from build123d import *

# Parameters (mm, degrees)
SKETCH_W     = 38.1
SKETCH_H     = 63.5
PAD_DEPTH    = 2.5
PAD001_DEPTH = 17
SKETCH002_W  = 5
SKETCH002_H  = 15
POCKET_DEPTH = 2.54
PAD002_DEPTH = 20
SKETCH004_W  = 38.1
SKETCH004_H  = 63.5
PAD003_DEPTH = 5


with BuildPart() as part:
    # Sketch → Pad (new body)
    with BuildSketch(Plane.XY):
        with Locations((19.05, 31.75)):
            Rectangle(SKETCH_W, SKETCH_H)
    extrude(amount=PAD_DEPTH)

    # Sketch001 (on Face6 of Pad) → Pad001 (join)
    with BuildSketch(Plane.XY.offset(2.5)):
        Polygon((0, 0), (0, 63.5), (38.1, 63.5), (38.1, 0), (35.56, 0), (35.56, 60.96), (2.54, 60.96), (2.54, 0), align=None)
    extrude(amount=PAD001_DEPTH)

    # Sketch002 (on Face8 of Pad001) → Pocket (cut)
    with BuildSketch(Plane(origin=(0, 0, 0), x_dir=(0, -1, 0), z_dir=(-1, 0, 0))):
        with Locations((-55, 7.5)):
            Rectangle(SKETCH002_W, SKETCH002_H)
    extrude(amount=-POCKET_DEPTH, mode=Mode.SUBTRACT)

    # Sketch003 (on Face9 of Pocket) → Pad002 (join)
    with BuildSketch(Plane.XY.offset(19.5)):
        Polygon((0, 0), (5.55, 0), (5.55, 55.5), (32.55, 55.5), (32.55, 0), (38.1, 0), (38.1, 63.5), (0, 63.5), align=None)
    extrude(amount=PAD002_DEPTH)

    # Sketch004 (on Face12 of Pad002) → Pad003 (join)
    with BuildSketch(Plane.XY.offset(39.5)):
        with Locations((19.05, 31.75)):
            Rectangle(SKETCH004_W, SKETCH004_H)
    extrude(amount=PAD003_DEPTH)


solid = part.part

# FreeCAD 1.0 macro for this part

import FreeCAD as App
import Part
import Sketcher
Q = App.Units.Quantity

doc = App.newDocument("Part")
params = doc.addObject("Spreadsheet::Sheet", "Params")
for row, (alias, value) in enumerate([
    ("sketch1_width", "38.1 mm"),
    ("sketch1_height", "63.5 mm"),
    ("pad1_length", "2.5 mm"),
    ("sketch2_width", "38.1 mm"),
    ("sketch2_height", "63.5 mm"),
    ("sketch2_width2", "2.54 mm"),
    ("sketch2_height2", "60.96 mm"),
    ("pad2_length", "17 mm"),
    ("sketch3_width", "5 mm"),
    ("sketch3_height", "15 mm"),
    ("pocket1_length", "2.54 mm"),
    ("sketch4_width", "27 mm"),
    ("sketch4_width2", "38.1 mm"),
    ("sketch4_height", "55.5 mm"),
    ("sketch4_height2", "63.5 mm"),
    ("pad3_length", "20 mm"),
    ("sketch5_width", "38.1 mm"),
    ("sketch5_height", "63.5 mm"),
    ("pad4_length", "5 mm"),
], start=1):
    params.set(f"A{row}", alias)
    params.set(f"B{row}", "=" + value)
    params.setAlias(f"B{row}", alias)

body = doc.addObject("PartDesign::Body", "Body")

# Sketch on XY plane
sketch1 = body.newObject("Sketcher::SketchObject", "Sketch")
sketch1.AttachmentSupport = (doc.getObject("XY_Plane"), [""])
sketch1.MapMode = "FlatFace"
sketch1.addGeometry([
    Part.LineSegment(App.Vector(0, 64, 0), App.Vector(0, 0, 0)),
    Part.LineSegment(App.Vector(0, 0, 0), App.Vector(38, 0, 0)),
    Part.LineSegment(App.Vector(38, 0, 0), App.Vector(38, 64, 0)),
    Part.LineSegment(App.Vector(38, 64, 0), App.Vector(0, 64, 0)),
], False)
sketch1.addConstraint([
    Sketcher.Constraint("Coincident", 0, 2, 1, 1),
    Sketcher.Constraint("Coincident", 1, 2, 2, 1),
    Sketcher.Constraint("Coincident", 2, 2, 3, 1),
    Sketcher.Constraint("Coincident", 3, 2, 0, 1),
    Sketcher.Constraint("Vertical", 0),
    Sketcher.Constraint("Horizontal", 1),
    Sketcher.Constraint("Vertical", 2),
    Sketcher.Constraint("Horizontal", 3),
    Sketcher.Constraint("Coincident", 0, 2, -1, 1),
    Sketcher.Constraint("DistanceX", 1, 1, 1, 2, Q("38.1 mm")),
    Sketcher.Constraint("DistanceY", 0, 2, 0, 1, Q("63.5 mm")),
])
sketch1.setExpression("Constraints[9]", "Params.sketch1_width")
sketch1.setExpression("Constraints[10]", "Params.sketch1_height")
pad1 = body.newObject("PartDesign::Pad", "Pad")
pad1.Profile = sketch1
pad1.setExpression("Length", "Params.pad1_length")

# Sketch on XY plane
sketch2 = body.newObject("Sketcher::SketchObject", "Sketch001")
sketch2.AttachmentSupport = (doc.getObject("XY_Plane"), [""])
sketch2.MapMode = "FlatFace"
sketch2.AttachmentOffset = App.Placement(App.Vector(0, 0, 2.5), App.Rotation())
sketch2.addGeometry([
    Part.LineSegment(App.Vector(0, 63.5, 0), App.Vector(0, 0, 0)),  # 0
    Part.LineSegment(App.Vector(0, 0, 0), App.Vector(2.5, 0, 0)),  # 1
    Part.LineSegment(App.Vector(2.5, 0, 0), App.Vector(2.5, 61, 0)),  # 2
    Part.LineSegment(App.Vector(2.5, 61, 0), App.Vector(35.6, 61, 0)),  # 3
    Part.LineSegment(App.Vector(35.6, 61, 0), App.Vector(35.6, 0, 0)),  # 4
    Part.LineSegment(App.Vector(35.6, 0, 0), App.Vector(38.1, 0, 0)),  # 5
    Part.LineSegment(App.Vector(38.1, 0, 0), App.Vector(38.1, 63.5, 0)),  # 6
    Part.LineSegment(App.Vector(38.1, 63.5, 0), App.Vector(0, 63.5, 0)),  # 7
], False)
sketch2.addConstraint([
    Sketcher.Constraint("Coincident", 0, 2, 1, 1),
    Sketcher.Constraint("Coincident", 1, 2, 2, 1),
    Sketcher.Constraint("Coincident", 2, 2, 3, 1),
    Sketcher.Constraint("Coincident", 3, 2, 4, 1),
    Sketcher.Constraint("Coincident", 4, 2, 5, 1),
    Sketcher.Constraint("Coincident", 5, 2, 6, 1),
    Sketcher.Constraint("Coincident", 6, 2, 7, 1),
    Sketcher.Constraint("Coincident", 7, 2, 0, 1),
    Sketcher.Constraint("Vertical", 0),
    Sketcher.Constraint("Horizontal", 1),
    Sketcher.Constraint("Vertical", 2),
    Sketcher.Constraint("Horizontal", 3),
    Sketcher.Constraint("Vertical", 4),
    Sketcher.Constraint("Horizontal", 5),
    Sketcher.Constraint("Vertical", 6),
    Sketcher.Constraint("Horizontal", 7),
    Sketcher.Constraint("Coincident", 0, 2, -1, 1),
    Sketcher.Constraint("PointOnObject", 4, 2, -1),
    Sketcher.Constraint("Equal", 1, 5),
    Sketcher.Constraint("DistanceX", 7, 2, 7, 1, Q("38.1 mm")),
    Sketcher.Constraint("DistanceY", 0, 2, 0, 1, Q("63.5 mm")),
    Sketcher.Constraint("DistanceX", 1, 1, 1, 2, Q("2.54 mm")),
    Sketcher.Constraint("DistanceY", 2, 1, 2, 2, Q("60.96 mm")),
])
sketch2.setExpression("Constraints[19]", "Params.sketch2_width")
sketch2.setExpression("Constraints[20]", "Params.sketch2_height")
sketch2.setExpression("Constraints[21]", "Params.sketch2_width2")
sketch2.setExpression("Constraints[22]", "Params.sketch2_height2")
pad2 = body.newObject("PartDesign::Pad", "Pad001")
pad2.Profile = sketch2
pad2.setExpression("Length", "Params.pad2_length")

# Sketch on YZ plane
sketch3 = body.newObject("Sketcher::SketchObject", "Sketch002")
sketch3.AttachmentSupport = (doc.getObject("YZ_Plane"), [""])
sketch3.MapMode = "FlatFace"
sketch3.addGeometry([
    Part.LineSegment(App.Vector(58, 15, 0), App.Vector(58, 0, 0)),
    Part.LineSegment(App.Vector(58, 0, 0), App.Vector(52, 0, 0)),
    Part.LineSegment(App.Vector(52, 0, 0), App.Vector(52, 15, 0)),
    Part.LineSegment(App.Vector(52, 15, 0), App.Vector(58, 15, 0)),
], False)
sketch3.addConstraint([
    Sketcher.Constraint("Coincident", 0, 2, 1, 1),
    Sketcher.Constraint("Coincident", 1, 2, 2, 1),
    Sketcher.Constraint("Coincident", 2, 2, 3, 1),
    Sketcher.Constraint("Coincident", 3, 2, 0, 1),
    Sketcher.Constraint("Vertical", 0),
    Sketcher.Constraint("Horizontal", 1),
    Sketcher.Constraint("Vertical", 2),
    Sketcher.Constraint("Horizontal", 3),
    Sketcher.Constraint("PointOnObject", 0, 2, -1),
    Sketcher.Constraint("DistanceX", 1, 2, 1, 1, Q("5 mm")),
    Sketcher.Constraint("DistanceY", 0, 2, 0, 1, Q("15 mm")),
    Sketcher.Constraint("DistanceX", -1, 1, 0, 2, Q("57.5 mm")),
])
sketch3.setExpression("Constraints[9]", "Params.sketch3_width")
sketch3.setExpression("Constraints[10]", "Params.sketch3_height")
pocket1 = body.newObject("PartDesign::Pocket", "Pocket")
pocket1.Profile = sketch3
pocket1.setExpression("Length", "Params.pocket1_length")
pocket1.Reversed = True

# Sketch on XY plane
sketch4 = body.newObject("Sketcher::SketchObject", "Sketch003")
sketch4.AttachmentSupport = (doc.getObject("XY_Plane"), [""])
sketch4.MapMode = "FlatFace"
sketch4.AttachmentOffset = App.Placement(App.Vector(0, 0, 19.5), App.Rotation())
sketch4.addGeometry([
    Part.LineSegment(App.Vector(0, 0, 0), App.Vector(6, 0, 0)),  # 0
    Part.LineSegment(App.Vector(6, 0, 0), App.Vector(6, 56, 0)),  # 1
    Part.LineSegment(App.Vector(6, 56, 0), App.Vector(33, 56, 0)),  # 2
    Part.LineSegment(App.Vector(33, 56, 0), App.Vector(33, 0, 0)),  # 3
    Part.LineSegment(App.Vector(33, 0, 0), App.Vector(38, 0, 0)),  # 4
    Part.LineSegment(App.Vector(38, 0, 0), App.Vector(38, 64, 0)),  # 5
    Part.LineSegment(App.Vector(38, 64, 0), App.Vector(0, 64, 0)),  # 6
    Part.LineSegment(App.Vector(0, 64, 0), App.Vector(0, 0, 0)),  # 7
], False)
sketch4.addConstraint([
    Sketcher.Constraint("Coincident", 0, 2, 1, 1),
    Sketcher.Constraint("Coincident", 1, 2, 2, 1),
    Sketcher.Constraint("Coincident", 2, 2, 3, 1),
    Sketcher.Constraint("Coincident", 3, 2, 4, 1),
    Sketcher.Constraint("Coincident", 4, 2, 5, 1),
    Sketcher.Constraint("Coincident", 5, 2, 6, 1),
    Sketcher.Constraint("Coincident", 6, 2, 7, 1),
    Sketcher.Constraint("Coincident", 7, 2, 0, 1),
    Sketcher.Constraint("Horizontal", 0),
    Sketcher.Constraint("Vertical", 1),
    Sketcher.Constraint("Horizontal", 2),
    Sketcher.Constraint("Vertical", 3),
    Sketcher.Constraint("Horizontal", 4),
    Sketcher.Constraint("Vertical", 5),
    Sketcher.Constraint("Horizontal", 6),
    Sketcher.Constraint("Vertical", 7),
    Sketcher.Constraint("Coincident", 7, 2, -1, 1),
    Sketcher.Constraint("PointOnObject", 3, 2, -1),
    Sketcher.Constraint("Equal", 0, 4),
    Sketcher.Constraint("DistanceX", 2, 1, 2, 2, Q("27 mm")),
    Sketcher.Constraint("DistanceX", 6, 2, 6, 1, Q("38.1 mm")),
    Sketcher.Constraint("DistanceY", 1, 1, 1, 2, Q("55.5 mm")),
    Sketcher.Constraint("DistanceY", 5, 1, 5, 2, Q("63.5 mm")),
])
sketch4.setExpression("Constraints[19]", "Params.sketch4_width")
sketch4.setExpression("Constraints[20]", "Params.sketch4_width2")
sketch4.setExpression("Constraints[21]", "Params.sketch4_height")
sketch4.setExpression("Constraints[22]", "Params.sketch4_height2")
pad3 = body.newObject("PartDesign::Pad", "Pad002")
pad3.Profile = sketch4
pad3.setExpression("Length", "Params.pad3_length")

# Sketch on XY plane
sketch5 = body.newObject("Sketcher::SketchObject", "Sketch004")
sketch5.AttachmentSupport = (doc.getObject("XY_Plane"), [""])
sketch5.MapMode = "FlatFace"
sketch5.AttachmentOffset = App.Placement(App.Vector(0, 0, 39.5), App.Rotation())
sketch5.addGeometry([
    Part.LineSegment(App.Vector(0, 64, 0), App.Vector(0, 0, 0)),
    Part.LineSegment(App.Vector(0, 0, 0), App.Vector(38, 0, 0)),
    Part.LineSegment(App.Vector(38, 0, 0), App.Vector(38, 64, 0)),
    Part.LineSegment(App.Vector(38, 64, 0), App.Vector(0, 64, 0)),
], False)
sketch5.addConstraint([
    Sketcher.Constraint("Coincident", 0, 2, 1, 1),
    Sketcher.Constraint("Coincident", 1, 2, 2, 1),
    Sketcher.Constraint("Coincident", 2, 2, 3, 1),
    Sketcher.Constraint("Coincident", 3, 2, 0, 1),
    Sketcher.Constraint("Vertical", 0),
    Sketcher.Constraint("Horizontal", 1),
    Sketcher.Constraint("Vertical", 2),
    Sketcher.Constraint("Horizontal", 3),
    Sketcher.Constraint("Coincident", 0, 2, -1, 1),
    Sketcher.Constraint("DistanceX", 1, 1, 1, 2, Q("38.1 mm")),
    Sketcher.Constraint("DistanceY", 0, 2, 0, 1, Q("63.5 mm")),
])
sketch5.setExpression("Constraints[9]", "Params.sketch5_width")
sketch5.setExpression("Constraints[10]", "Params.sketch5_height")
pad4 = body.newObject("PartDesign::Pad", "Pad003")
pad4.Profile = sketch5
pad4.setExpression("Length", "Params.pad4_length")

doc.recompute()
